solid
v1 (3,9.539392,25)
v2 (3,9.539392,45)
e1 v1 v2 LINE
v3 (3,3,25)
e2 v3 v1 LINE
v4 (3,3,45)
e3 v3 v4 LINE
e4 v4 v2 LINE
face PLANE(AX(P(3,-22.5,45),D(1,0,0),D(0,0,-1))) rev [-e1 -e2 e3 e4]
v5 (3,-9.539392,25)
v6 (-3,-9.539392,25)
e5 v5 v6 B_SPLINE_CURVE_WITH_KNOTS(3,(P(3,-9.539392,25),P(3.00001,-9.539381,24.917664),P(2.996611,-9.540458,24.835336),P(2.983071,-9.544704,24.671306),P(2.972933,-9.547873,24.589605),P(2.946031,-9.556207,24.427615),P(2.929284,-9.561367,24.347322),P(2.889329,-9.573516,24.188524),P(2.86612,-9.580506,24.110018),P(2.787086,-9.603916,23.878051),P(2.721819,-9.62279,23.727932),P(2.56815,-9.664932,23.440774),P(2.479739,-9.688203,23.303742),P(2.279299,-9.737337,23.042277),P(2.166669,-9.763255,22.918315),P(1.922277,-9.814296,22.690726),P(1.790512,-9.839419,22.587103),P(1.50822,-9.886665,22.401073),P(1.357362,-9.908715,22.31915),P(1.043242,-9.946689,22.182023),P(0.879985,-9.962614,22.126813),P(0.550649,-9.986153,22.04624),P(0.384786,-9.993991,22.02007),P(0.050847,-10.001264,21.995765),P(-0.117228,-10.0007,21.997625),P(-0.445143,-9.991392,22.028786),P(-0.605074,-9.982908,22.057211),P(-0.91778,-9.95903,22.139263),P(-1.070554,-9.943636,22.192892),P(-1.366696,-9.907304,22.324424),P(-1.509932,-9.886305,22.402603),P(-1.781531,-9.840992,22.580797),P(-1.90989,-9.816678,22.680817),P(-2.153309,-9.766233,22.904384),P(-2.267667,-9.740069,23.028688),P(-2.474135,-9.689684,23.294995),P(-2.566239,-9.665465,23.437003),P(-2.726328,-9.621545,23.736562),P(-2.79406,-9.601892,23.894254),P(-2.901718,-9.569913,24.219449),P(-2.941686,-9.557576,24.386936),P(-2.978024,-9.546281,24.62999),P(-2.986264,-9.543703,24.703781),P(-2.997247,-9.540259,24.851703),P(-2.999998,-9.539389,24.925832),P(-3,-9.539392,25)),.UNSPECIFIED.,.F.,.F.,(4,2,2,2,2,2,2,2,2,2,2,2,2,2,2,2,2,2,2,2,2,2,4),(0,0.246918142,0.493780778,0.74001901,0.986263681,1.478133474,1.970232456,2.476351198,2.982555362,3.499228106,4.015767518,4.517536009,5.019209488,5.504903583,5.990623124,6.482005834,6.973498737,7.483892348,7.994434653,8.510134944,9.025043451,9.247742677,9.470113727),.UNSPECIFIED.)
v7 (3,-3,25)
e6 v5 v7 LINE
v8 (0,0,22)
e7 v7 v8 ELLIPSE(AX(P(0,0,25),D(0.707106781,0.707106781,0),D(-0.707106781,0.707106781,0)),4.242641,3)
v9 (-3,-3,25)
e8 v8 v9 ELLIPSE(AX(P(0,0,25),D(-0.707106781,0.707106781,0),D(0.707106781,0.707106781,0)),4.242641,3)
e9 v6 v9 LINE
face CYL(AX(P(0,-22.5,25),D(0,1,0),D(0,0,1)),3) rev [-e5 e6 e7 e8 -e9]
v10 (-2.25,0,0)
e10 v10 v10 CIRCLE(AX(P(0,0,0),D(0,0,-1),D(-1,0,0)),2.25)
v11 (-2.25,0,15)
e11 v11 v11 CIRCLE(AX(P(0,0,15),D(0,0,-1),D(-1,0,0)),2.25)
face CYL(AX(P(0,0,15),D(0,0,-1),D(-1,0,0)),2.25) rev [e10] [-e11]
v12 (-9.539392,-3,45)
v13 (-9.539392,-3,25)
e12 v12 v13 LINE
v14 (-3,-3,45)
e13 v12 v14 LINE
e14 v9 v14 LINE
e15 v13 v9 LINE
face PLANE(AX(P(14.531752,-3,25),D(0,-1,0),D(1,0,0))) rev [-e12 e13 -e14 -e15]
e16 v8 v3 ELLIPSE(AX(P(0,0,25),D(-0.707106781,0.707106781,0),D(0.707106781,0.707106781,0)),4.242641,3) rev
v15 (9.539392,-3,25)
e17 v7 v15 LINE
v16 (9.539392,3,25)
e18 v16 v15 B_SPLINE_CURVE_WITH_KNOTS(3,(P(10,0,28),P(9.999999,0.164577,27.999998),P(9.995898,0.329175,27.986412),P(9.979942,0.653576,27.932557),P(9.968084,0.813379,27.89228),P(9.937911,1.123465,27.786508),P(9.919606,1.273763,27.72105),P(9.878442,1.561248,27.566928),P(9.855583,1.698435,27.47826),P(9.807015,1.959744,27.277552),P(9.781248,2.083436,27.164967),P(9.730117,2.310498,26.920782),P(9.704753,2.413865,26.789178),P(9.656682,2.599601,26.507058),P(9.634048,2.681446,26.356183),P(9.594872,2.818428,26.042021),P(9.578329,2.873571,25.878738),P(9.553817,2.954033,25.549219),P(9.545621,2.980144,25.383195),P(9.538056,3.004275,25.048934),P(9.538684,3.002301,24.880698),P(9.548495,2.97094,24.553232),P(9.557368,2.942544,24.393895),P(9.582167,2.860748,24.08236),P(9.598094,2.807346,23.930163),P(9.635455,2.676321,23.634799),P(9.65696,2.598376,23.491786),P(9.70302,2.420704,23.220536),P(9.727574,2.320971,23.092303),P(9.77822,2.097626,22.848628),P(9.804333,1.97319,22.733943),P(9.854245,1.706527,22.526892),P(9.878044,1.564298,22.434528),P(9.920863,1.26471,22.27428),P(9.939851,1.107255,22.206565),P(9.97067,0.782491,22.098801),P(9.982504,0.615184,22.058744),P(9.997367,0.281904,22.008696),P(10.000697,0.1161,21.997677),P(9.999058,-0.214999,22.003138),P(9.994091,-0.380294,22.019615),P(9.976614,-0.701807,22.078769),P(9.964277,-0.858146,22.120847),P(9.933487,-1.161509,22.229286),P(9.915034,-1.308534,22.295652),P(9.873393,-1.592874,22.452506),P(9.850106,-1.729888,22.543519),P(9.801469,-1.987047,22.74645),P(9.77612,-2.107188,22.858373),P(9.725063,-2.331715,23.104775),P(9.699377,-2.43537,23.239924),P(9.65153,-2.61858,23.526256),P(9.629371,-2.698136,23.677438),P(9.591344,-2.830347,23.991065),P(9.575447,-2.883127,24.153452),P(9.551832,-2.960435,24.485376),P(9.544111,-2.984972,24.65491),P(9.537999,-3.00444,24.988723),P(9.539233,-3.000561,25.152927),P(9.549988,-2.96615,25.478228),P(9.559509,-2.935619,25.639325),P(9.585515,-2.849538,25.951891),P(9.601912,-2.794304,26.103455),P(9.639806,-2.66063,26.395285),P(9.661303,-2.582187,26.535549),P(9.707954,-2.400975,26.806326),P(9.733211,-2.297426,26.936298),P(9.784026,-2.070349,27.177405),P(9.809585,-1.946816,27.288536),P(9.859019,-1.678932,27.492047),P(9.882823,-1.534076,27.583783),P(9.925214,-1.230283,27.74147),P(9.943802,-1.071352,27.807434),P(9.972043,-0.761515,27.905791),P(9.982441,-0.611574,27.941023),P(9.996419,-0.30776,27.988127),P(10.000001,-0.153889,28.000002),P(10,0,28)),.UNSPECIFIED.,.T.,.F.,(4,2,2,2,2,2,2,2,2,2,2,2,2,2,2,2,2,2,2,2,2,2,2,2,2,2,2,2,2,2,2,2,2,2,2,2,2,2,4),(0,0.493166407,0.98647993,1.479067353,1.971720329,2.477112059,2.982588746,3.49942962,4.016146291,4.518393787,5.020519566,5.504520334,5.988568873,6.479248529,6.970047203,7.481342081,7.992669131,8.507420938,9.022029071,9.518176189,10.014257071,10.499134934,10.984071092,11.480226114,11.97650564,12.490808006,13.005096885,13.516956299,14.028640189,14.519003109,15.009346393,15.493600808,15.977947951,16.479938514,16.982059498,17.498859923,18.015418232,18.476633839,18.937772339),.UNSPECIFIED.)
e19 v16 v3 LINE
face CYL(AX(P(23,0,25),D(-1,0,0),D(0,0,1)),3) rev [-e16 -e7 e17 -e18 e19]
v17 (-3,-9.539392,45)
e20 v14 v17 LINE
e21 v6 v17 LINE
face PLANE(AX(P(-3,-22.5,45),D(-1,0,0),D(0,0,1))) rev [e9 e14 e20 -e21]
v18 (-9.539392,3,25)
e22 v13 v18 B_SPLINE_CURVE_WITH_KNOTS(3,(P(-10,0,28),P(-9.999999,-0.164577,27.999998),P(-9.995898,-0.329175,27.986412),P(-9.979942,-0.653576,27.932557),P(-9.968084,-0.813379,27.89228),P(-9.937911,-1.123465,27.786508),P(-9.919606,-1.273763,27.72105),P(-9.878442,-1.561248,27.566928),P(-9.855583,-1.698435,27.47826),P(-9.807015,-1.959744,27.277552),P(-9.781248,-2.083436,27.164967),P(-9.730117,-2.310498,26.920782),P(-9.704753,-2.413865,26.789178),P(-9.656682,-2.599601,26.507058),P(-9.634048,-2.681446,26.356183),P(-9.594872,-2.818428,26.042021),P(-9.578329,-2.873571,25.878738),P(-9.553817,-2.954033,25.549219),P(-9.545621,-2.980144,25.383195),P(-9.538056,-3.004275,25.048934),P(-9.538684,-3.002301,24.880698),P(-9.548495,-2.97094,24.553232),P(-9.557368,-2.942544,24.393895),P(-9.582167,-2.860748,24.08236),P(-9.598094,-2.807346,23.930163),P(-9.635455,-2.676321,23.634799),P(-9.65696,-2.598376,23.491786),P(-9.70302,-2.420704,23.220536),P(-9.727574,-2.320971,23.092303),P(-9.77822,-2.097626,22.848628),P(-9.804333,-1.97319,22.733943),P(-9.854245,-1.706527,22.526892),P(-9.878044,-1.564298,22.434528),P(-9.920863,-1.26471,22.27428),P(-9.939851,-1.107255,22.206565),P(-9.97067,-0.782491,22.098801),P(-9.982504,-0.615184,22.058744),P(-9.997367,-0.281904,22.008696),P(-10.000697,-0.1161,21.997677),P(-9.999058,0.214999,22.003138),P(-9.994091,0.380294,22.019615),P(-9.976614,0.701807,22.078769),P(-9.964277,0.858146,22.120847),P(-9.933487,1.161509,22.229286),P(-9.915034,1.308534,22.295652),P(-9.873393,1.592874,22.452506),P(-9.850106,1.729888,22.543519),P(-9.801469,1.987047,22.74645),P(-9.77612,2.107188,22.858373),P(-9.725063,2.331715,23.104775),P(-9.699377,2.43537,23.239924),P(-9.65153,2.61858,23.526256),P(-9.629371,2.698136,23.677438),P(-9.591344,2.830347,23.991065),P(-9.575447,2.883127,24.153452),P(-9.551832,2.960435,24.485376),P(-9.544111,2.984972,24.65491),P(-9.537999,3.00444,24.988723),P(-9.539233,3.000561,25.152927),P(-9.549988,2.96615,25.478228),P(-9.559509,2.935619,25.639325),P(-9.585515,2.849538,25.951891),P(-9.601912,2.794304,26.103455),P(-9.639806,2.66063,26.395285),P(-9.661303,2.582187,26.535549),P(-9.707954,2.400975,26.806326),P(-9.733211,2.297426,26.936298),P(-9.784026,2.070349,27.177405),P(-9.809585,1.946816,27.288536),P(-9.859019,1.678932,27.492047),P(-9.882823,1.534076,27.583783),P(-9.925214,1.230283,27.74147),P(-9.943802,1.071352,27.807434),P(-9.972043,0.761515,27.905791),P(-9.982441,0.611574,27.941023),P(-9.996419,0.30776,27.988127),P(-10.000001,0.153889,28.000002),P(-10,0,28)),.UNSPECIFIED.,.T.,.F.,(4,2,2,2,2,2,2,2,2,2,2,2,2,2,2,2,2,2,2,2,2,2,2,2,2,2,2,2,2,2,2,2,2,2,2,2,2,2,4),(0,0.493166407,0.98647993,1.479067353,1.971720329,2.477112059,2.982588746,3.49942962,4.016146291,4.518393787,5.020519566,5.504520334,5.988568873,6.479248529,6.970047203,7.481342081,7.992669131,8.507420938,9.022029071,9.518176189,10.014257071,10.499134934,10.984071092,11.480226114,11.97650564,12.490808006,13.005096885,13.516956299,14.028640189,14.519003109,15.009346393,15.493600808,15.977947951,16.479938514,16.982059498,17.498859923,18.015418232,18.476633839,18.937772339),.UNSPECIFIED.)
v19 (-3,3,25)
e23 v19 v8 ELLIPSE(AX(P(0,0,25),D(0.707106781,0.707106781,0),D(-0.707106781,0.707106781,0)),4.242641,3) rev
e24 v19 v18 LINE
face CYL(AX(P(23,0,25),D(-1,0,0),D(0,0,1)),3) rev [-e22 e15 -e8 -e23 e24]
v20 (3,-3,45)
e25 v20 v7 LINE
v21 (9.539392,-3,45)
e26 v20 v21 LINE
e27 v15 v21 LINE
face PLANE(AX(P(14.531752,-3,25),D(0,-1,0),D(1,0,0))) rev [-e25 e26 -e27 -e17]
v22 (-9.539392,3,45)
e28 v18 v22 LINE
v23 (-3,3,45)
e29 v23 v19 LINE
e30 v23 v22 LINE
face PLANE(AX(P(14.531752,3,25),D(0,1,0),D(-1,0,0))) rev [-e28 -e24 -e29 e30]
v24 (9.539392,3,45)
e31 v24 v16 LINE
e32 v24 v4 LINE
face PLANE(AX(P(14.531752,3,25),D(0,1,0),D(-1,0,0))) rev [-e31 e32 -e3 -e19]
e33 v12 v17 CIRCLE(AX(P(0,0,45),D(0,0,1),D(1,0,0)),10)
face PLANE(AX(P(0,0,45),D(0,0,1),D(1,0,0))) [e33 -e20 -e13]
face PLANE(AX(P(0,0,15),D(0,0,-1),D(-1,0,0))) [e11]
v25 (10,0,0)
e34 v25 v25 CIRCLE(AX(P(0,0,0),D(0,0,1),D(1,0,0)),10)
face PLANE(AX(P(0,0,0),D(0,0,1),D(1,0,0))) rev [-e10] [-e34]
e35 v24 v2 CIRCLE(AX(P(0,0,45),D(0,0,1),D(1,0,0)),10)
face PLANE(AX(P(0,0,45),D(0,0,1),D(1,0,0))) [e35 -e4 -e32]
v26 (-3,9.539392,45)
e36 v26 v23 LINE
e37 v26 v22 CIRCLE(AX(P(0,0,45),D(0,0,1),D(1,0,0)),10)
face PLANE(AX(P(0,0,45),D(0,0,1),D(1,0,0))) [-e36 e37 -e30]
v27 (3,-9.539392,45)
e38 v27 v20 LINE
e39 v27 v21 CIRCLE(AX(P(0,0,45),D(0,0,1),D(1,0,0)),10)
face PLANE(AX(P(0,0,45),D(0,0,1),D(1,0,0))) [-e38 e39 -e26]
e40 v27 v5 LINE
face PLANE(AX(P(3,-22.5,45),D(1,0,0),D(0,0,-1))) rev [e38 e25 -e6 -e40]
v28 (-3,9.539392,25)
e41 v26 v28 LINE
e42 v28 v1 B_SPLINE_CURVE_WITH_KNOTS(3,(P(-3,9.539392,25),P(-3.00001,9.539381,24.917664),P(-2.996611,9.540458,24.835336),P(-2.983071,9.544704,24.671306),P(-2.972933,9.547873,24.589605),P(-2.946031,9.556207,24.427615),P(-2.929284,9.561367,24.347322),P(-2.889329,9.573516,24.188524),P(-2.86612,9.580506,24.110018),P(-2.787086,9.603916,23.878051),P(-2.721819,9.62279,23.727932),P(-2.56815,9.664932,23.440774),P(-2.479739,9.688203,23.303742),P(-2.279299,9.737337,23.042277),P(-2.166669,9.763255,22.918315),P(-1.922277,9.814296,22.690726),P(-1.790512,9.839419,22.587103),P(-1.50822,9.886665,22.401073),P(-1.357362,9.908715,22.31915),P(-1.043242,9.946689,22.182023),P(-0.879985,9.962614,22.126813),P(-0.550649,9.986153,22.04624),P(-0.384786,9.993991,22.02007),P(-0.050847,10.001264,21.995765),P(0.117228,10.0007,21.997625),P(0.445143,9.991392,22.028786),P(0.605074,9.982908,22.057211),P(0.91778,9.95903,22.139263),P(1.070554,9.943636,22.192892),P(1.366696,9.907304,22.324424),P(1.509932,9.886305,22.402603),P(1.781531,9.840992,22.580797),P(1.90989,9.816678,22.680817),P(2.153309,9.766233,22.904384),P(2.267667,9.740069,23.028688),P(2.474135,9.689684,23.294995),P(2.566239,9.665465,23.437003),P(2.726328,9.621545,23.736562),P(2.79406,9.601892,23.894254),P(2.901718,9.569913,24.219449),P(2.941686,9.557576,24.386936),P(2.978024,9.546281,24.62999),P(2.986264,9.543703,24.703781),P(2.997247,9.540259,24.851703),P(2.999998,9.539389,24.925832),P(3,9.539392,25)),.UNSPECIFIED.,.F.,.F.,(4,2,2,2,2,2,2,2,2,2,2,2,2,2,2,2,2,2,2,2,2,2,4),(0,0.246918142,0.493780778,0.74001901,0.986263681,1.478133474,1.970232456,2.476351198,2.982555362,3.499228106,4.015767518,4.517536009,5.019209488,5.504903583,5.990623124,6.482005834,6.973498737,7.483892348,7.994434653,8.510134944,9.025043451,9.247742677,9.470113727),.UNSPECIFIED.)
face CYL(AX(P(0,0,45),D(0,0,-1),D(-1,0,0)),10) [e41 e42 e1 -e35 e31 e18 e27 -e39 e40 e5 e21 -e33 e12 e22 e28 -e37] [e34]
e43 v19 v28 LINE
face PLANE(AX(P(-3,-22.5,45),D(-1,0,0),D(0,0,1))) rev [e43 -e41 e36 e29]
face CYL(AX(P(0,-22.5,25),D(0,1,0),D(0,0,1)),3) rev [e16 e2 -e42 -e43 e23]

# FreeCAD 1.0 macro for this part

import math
import FreeCAD as App
import Part
import Sketcher

V = App.Vector
Q = App.Units.Quantity

doc = App.newDocument("Part")
body = doc.addObject("PartDesign::Body", "Body")

sketch1 = body.newObject("Sketcher::SketchObject", "Sketch")
sketch1.AttachmentSupport = (doc.getObject("XY_Plane"), [""])
sketch1.MapMode = "FlatFace"
sketch1.addGeometry(Part.Circle(V(0, 0, 0), V(0, 0, 1), 10), False)
sketch1.addConstraint(Sketcher.Constraint("Coincident", 0, 3, -1, 1))
sketch1.addConstraint(Sketcher.Constraint("Diameter", 0, Q("20 mm")))
pad1 = body.newObject("PartDesign::Pad", "Pad")
pad1.Profile = sketch1
pad1.Length = 45

sketch2 = body.newObject("Sketcher::SketchObject", "Sketch001")
sketch2.AttachmentSupport = (doc.getObject("XZ_Plane"), [""])
sketch2.MapMode = "FlatFace"
sketch2.addGeometry(Part.LineSegment(V(3, 45, 0), V(3, 25, 0)), False)
sketch2.addGeometry(Part.ArcOfCircle(Part.Circle(V(0, 25, 0), V(0, 0, 1), 3), math.radians(180), math.radians(360)), False)
sketch2.addGeometry(Part.LineSegment(V(-3, 25, 0), V(-3, 45, 0)), False)
sketch2.addGeometry(Part.LineSegment(V(-3, 45, 0), V(3, 45, 0)), False)
sketch2.addConstraint(Sketcher.Constraint("Tangent", 0, 2, 1, 2))
sketch2.addConstraint(Sketcher.Constraint("Tangent", 1, 1, 2, 1))
sketch2.addConstraint(Sketcher.Constraint("Coincident", 2, 2, 3, 1))
sketch2.addConstraint(Sketcher.Constraint("Coincident", 3, 2, 0, 1))
sketch2.addConstraint(Sketcher.Constraint("Vertical", 0))
sketch2.addConstraint(Sketcher.Constraint("Vertical", 2))
sketch2.addConstraint(Sketcher.Constraint("Horizontal", 3))
sketch2.addConstraint(Sketcher.Constraint("PointOnObject", 1, 3, -2))
sketch2.addConstraint(Sketcher.Constraint("Radius", 1, Q("3 mm")))
sketch2.addConstraint(Sketcher.Constraint("DistanceY", 0, 2, 0, 1, Q("20 mm")))
sketch2.addConstraint(Sketcher.Constraint("DistanceY", -1, 1, 1, 3, Q("25 mm")))
pocket1 = body.newObject("PartDesign::Pocket", "Pocket")
pocket1.Profile = sketch2
pocket1.Length = 45
pocket1.Midplane = True

sketch3 = body.newObject("Sketcher::SketchObject", "Sketch002")
sketch3.AttachmentSupport = (doc.getObject("XY_Plane"), [""])
sketch3.MapMode = "FlatFace"
sketch3.AttachmentOffset = App.Placement(V(0, 0, 45), App.Rotation())
sketch3.addGeometry(Part.LineSegment(V(-15, 3, 0), V(-15, -3, 0)), False)
sketch3.addGeometry(Part.LineSegment(V(-15, -3, 0), V(15, -3, 0)), False)
sketch3.addGeometry(Part.LineSegment(V(15, -3, 0), V(15, 3, 0)), False)
sketch3.addGeometry(Part.LineSegment(V(15, 3, 0), V(-15, 3, 0)), False)
sketch3.addConstraint(Sketcher.Constraint("Coincident", 0, 2, 1, 1))
sketch3.addConstraint(Sketcher.Constraint("Coincident", 1, 2, 2, 1))
sketch3.addConstraint(Sketcher.Constraint("Coincident", 2, 2, 3, 1))
sketch3.addConstraint(Sketcher.Constraint("Coincident", 3, 2, 0, 1))
sketch3.addConstraint(Sketcher.Constraint("Vertical", 0))
sketch3.addConstraint(Sketcher.Constraint("Horizontal", 1))
sketch3.addConstraint(Sketcher.Constraint("Vertical", 2))
sketch3.addConstraint(Sketcher.Constraint("Horizontal", 3))
sketch3.addConstraint(Sketcher.Constraint("Symmetric", 0, 2, 2, 2, -1, 1))
sketch3.addConstraint(Sketcher.Constraint("DistanceY", 0, 2, 0, 1, Q("6 mm")))
sketch3.addConstraint(Sketcher.Constraint("DistanceX", 1, 1, 1, 2, Q("29.063503 mm")))
pocket2 = body.newObject("PartDesign::Pocket", "Pocket001")
pocket2.Profile = sketch3
pocket2.Length = 20

sketch4 = body.newObject("Sketcher::SketchObject", "Sketch003")
sketch4.AttachmentSupport = (doc.getObject("XY_Plane"), [""])
sketch4.MapMode = "FlatFace"
sketch4.addGeometry(Part.Circle(V(0, 0, 0), V(0, 0, 1), 2.2), False)
sketch4.addConstraint(Sketcher.Constraint("Coincident", 0, 3, -1, 1))
sketch4.addConstraint(Sketcher.Constraint("Diameter", 0, Q("4.5 mm")))
pocket3 = body.newObject("PartDesign::Pocket", "Pocket002")
pocket3.Profile = sketch4
pocket3.Length = 15
pocket3.Reversed = True

sketch5 = body.newObject("Sketcher::SketchObject", "Sketch004")
sketch5.AttachmentSupport = (doc.getObject("YZ_Plane"), [""])
sketch5.MapMode = "FlatFace"
sketch5.addGeometry(Part.Circle(V(0, 25, 0), V(0, 0, 1), 3), False)
sketch5.addConstraint(Sketcher.Constraint("PointOnObject", 0, 3, -2))
sketch5.addConstraint(Sketcher.Constraint("Diameter", 0, Q("6 mm")))
sketch5.addConstraint(Sketcher.Constraint("DistanceY", -1, 1, 0, 3, Q("25 mm")))
pocket4 = body.newObject("PartDesign::Pocket", "Pocket003")
pocket4.Profile = sketch5
pocket4.Length = 46
pocket4.Midplane = True

doc.recompute()
